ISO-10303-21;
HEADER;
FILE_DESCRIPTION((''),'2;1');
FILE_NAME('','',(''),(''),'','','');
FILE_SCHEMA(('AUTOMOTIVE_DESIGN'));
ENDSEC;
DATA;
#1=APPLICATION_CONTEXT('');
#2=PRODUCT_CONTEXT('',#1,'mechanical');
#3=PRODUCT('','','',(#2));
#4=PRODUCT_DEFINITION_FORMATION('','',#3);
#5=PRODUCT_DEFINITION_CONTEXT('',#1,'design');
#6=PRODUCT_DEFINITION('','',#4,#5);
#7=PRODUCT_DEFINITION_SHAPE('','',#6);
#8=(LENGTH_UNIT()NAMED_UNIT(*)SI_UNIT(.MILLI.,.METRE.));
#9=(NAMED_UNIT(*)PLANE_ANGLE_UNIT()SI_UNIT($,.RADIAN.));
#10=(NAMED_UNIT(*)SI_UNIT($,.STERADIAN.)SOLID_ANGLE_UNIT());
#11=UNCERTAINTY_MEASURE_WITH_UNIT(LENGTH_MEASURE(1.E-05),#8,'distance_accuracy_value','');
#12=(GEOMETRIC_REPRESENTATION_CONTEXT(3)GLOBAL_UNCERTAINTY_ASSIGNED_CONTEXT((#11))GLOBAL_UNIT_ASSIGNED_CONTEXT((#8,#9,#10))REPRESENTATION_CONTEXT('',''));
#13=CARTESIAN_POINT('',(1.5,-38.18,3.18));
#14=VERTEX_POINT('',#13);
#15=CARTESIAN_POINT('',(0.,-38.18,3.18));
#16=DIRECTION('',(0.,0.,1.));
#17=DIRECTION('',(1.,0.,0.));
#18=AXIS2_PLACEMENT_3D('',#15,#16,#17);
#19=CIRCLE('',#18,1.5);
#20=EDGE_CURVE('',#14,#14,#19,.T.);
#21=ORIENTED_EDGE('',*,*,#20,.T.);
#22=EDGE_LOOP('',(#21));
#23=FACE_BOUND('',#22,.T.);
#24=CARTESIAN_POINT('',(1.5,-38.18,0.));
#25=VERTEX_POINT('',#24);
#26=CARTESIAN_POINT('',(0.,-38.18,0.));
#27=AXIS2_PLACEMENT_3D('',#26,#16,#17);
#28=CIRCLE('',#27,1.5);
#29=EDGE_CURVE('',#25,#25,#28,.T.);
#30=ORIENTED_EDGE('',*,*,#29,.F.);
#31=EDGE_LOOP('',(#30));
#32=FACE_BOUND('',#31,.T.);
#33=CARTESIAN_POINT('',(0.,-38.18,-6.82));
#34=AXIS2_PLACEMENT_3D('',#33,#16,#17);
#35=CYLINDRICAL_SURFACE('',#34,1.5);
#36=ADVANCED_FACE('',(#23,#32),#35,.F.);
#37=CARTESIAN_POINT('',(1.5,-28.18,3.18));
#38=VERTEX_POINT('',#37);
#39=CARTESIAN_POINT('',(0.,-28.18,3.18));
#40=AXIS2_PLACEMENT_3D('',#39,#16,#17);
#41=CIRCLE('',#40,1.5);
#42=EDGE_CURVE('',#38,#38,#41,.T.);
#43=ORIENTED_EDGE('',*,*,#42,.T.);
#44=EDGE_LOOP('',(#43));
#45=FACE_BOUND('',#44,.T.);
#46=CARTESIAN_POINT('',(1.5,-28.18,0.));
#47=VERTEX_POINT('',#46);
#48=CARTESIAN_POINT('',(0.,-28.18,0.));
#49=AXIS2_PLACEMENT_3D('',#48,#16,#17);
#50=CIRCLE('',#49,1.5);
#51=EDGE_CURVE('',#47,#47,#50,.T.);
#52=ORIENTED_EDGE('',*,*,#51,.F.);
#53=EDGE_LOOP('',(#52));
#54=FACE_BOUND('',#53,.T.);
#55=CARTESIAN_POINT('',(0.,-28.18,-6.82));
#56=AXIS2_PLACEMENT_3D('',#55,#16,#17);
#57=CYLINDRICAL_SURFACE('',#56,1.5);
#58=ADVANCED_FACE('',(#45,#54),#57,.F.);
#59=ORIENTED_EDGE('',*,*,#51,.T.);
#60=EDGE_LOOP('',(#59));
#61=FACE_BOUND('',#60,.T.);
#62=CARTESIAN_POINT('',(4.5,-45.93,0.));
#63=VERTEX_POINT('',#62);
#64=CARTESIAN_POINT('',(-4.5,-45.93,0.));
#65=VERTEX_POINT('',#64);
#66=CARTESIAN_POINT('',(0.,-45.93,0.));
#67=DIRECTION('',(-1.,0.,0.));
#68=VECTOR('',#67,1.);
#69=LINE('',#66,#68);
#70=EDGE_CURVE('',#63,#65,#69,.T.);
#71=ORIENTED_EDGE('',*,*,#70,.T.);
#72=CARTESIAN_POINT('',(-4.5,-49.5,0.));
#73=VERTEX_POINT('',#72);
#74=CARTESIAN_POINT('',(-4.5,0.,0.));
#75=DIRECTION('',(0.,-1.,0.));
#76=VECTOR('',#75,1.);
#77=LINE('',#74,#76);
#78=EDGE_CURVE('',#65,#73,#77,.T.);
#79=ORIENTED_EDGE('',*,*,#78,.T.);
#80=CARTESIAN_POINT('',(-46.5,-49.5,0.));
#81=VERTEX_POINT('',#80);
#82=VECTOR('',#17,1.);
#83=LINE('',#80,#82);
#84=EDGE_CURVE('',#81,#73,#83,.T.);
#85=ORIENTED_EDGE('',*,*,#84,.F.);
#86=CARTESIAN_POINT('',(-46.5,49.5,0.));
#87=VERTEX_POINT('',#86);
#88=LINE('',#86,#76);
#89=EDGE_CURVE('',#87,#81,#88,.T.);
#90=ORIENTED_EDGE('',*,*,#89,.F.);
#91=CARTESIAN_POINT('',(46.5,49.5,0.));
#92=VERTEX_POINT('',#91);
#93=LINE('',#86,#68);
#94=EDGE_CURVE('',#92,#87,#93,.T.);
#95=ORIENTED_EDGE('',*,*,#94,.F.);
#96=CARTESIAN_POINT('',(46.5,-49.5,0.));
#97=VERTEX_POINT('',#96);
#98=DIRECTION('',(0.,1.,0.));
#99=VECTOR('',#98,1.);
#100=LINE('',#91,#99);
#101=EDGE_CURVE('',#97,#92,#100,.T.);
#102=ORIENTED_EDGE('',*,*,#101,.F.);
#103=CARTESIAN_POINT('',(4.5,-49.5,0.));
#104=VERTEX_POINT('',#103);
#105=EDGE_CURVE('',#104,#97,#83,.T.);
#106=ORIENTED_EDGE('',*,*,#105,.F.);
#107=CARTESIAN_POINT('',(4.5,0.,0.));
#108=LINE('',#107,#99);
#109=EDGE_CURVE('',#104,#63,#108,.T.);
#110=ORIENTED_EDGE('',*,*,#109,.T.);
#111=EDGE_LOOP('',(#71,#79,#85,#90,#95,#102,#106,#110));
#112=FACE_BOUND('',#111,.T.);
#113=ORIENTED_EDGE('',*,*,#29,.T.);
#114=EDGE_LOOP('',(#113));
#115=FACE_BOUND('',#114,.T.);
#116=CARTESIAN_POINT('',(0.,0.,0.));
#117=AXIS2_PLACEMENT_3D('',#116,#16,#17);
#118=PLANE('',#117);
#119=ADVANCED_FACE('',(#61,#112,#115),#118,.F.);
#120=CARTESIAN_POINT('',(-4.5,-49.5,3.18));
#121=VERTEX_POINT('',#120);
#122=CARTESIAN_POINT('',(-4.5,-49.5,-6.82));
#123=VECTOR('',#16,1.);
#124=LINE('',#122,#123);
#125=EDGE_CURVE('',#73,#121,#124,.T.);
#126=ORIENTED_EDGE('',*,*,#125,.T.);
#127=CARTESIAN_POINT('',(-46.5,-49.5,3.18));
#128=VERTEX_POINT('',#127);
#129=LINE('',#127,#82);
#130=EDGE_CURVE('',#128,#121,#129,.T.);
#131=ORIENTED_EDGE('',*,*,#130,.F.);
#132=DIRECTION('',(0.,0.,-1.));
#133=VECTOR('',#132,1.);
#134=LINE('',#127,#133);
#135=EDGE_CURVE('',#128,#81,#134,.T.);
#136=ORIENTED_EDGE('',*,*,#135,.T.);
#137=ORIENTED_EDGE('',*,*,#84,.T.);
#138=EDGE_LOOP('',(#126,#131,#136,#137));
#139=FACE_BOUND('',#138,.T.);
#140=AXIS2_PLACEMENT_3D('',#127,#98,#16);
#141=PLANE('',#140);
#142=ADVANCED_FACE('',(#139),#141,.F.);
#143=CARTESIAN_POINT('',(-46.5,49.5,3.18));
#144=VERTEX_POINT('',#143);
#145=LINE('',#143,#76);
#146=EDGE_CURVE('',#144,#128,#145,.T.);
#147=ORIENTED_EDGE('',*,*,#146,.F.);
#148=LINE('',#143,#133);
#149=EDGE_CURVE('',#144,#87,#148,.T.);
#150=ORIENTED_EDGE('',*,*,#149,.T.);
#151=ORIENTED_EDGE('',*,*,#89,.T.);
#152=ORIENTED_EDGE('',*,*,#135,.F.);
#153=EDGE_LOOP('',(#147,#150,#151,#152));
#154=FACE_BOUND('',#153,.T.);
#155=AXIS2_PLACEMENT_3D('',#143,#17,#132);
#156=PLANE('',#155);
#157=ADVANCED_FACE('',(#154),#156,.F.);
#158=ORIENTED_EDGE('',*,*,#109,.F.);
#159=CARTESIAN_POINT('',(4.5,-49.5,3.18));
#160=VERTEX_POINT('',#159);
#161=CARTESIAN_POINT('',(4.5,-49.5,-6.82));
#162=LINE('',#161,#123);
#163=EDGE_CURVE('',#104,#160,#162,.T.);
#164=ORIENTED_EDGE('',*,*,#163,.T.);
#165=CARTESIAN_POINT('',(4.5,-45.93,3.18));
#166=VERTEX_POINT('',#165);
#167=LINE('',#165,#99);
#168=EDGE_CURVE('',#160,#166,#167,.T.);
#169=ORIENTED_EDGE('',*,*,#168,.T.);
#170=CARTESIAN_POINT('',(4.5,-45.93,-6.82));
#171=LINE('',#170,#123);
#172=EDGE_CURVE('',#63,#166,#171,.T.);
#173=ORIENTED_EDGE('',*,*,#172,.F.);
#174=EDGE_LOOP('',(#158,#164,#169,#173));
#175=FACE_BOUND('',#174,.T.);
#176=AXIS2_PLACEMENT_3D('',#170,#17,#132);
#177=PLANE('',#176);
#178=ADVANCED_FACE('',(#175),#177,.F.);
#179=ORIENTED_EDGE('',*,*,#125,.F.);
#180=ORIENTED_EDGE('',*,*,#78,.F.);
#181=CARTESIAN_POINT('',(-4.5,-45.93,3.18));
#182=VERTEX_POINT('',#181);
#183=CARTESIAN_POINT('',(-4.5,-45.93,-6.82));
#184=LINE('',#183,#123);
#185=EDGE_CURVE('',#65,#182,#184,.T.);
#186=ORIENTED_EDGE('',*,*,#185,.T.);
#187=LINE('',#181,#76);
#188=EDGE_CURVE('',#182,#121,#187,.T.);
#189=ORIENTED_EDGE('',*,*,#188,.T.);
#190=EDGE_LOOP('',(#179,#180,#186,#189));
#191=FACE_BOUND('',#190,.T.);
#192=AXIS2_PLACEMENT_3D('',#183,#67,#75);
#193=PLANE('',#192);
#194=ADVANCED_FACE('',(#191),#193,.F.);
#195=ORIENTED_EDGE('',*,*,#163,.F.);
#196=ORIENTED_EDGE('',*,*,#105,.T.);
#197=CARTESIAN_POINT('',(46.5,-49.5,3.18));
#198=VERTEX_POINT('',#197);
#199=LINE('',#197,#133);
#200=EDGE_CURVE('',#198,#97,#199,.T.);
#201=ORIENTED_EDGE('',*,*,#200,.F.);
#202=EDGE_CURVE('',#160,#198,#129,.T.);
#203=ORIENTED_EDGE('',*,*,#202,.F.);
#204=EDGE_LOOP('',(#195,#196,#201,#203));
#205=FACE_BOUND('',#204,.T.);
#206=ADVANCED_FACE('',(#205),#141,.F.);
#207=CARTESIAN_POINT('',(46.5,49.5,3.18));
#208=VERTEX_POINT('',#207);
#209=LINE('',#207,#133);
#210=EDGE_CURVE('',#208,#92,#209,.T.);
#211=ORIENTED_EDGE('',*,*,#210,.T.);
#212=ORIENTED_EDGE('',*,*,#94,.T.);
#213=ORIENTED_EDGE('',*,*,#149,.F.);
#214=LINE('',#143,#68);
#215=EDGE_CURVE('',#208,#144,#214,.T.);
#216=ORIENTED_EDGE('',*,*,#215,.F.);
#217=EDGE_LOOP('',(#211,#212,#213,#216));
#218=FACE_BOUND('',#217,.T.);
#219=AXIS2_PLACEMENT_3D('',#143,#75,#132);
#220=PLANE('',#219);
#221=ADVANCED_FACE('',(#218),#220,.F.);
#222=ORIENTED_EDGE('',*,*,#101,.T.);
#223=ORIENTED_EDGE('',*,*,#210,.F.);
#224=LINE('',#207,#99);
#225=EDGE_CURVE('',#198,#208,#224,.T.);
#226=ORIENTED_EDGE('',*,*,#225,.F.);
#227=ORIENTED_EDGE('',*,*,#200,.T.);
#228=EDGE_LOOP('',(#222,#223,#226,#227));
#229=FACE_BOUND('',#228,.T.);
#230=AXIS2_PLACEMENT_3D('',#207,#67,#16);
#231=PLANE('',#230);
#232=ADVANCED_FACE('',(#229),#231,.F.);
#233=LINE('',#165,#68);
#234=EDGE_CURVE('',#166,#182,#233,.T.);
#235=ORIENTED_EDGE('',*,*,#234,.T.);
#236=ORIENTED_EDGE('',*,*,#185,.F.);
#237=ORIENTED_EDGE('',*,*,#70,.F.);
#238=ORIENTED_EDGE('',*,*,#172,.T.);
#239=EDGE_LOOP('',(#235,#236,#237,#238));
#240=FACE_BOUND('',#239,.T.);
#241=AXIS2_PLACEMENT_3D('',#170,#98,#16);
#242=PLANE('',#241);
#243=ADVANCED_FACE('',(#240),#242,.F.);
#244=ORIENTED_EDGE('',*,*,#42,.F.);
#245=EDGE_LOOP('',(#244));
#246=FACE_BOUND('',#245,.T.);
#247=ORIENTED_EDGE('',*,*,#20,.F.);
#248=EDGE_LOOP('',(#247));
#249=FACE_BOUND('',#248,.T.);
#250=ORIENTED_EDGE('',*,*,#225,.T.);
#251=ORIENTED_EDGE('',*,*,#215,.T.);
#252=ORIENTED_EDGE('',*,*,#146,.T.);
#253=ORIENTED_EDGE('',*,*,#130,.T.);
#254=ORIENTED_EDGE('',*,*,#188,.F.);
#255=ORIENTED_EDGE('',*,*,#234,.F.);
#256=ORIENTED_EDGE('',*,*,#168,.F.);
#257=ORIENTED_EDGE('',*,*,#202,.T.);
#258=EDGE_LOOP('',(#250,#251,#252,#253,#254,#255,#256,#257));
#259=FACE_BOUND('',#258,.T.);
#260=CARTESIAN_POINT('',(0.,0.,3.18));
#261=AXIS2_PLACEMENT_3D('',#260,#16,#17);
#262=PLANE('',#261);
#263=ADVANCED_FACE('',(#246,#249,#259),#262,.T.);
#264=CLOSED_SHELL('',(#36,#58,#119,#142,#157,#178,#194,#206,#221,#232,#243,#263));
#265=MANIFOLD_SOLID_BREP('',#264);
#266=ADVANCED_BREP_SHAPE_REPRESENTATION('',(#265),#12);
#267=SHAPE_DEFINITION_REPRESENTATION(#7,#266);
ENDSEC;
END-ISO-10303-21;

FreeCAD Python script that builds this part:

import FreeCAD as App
import Part
import Sketcher
from FreeCAD import Vector
Q = App.Units.Quantity


def add_polygon(sketch, points):
    """Adds a closed chain of lines whose ends are joined by coincident constraints."""
    first, n = sketch.GeometryCount, len(points)
    for a, b in zip(points, points[1:] + points[:1]):
        sketch.addGeometry(Part.LineSegment(App.Vector(*a, 0), App.Vector(*b, 0)), False)
    for i in range(n):
        sketch.addConstraint(Sketcher.Constraint("Coincident", first + i, 2, first + (i + 1) % n, 1))

doc = App.newDocument("Part")
params = doc.addObject("Spreadsheet::Sheet", "Params")
for row, (alias, value) in enumerate([
    ("sketch1_width", "93 mm"),
    ("sketch1_height", "99 mm"),
    ("pad1_length", "3.18 mm"),
    ("sketch2_diameter", "3 mm"),
    ("pocket1_length", "10 mm"),
    ("sketch3_width", "9 mm"),
    ("sketch3_height", "3.57 mm"),
    ("pocket2_length", "10 mm"),
], start=1):
    params.set(f"A{row}", alias)
    params.set(f"B{row}", "=" + value)
    params.setAlias(f"B{row}", alias)

body = doc.addObject("PartDesign::Body", "Body")

sketch1 = body.newObject("Sketcher::SketchObject", "Sketch")
sketch1.AttachmentSupport = (doc.getObject("XY_Plane"), [""])
sketch1.MapMode = "FlatFace"
add_polygon(sketch1, [(-46, 50), (-46, -50), (46, -50), (46, 50)])
sketch1.addConstraint([
    Sketcher.Constraint("Vertical", 0),
    Sketcher.Constraint("Horizontal", 1),
    Sketcher.Constraint("Vertical", 2),
    Sketcher.Constraint("Horizontal", 3),
    Sketcher.Constraint("Symmetric", 0, 2, 2, 2, -1, 1),
    Sketcher.Constraint("DistanceX", 1, 1, 1, 2, Q("93 mm")),
    Sketcher.Constraint("DistanceY", 0, 2, 0, 1, Q("99 mm")),
])
sketch1.setExpression("Constraints[9]", "Params.sketch1_width")
sketch1.setExpression("Constraints[10]", "Params.sketch1_height")
pad1 = body.newObject("PartDesign::Pad", "Pad")
pad1.Profile = sketch1
pad1.setExpression("Length", "Params.pad1_length")

sketch2 = body.newObject("Sketcher::SketchObject", "Sketch001")
sketch2.AttachmentSupport = (doc.getObject("XY_Plane"), [""])
sketch2.MapMode = "FlatFace"
sketch2.AttachmentOffset = App.Placement(Vector(0, 0, 3.18), App.Rotation())
sketch2.addGeometry([
    Part.Circle(Vector(0, -38.2, 0), Vector(0, 0, 1), 1.5),
    Part.Circle(Vector(0, -28.2, 0), Vector(0, 0, 1), 1.5),
], False)
sketch2.addConstraint([
    Sketcher.Constraint("Equal", 0, 1),
    Sketcher.Constraint("PointOnObject", 0, 3, -2),
    Sketcher.Constraint("PointOnObject", 1, 3, -2),
    Sketcher.Constraint("Diameter", 0, Q("3 mm")),
    Sketcher.Constraint("DistanceY", 0, 3, 1, 3, Q("10 mm")),
    Sketcher.Constraint("DistanceY", 0, 3, -1, 1, Q("38.18 mm")),
])
sketch2.setExpression("Constraints[3]", "Params.sketch2_diameter")
pocket1 = body.newObject("PartDesign::Pocket", "Pocket")
pocket1.Profile = sketch2
pocket1.setExpression("Length", "Params.pocket1_length")

sketch3 = body.newObject("Sketcher::SketchObject", "Sketch002")
sketch3.AttachmentSupport = (doc.getObject("XY_Plane"), [""])
sketch3.MapMode = "FlatFace"
sketch3.AttachmentOffset = App.Placement(Vector(0, 0, 3.18), App.Rotation())
add_polygon(sketch3, [(-4.5, -45.9), (-4.5, -49.5), (4.5, -49.5), (4.5, -45.9)])
sketch3.addConstraint([
    Sketcher.Constraint("Vertical", 0),
    Sketcher.Constraint("Horizontal", 1),
    Sketcher.Constraint("Vertical", 2),
    Sketcher.Constraint("Horizontal", 3),
    Sketcher.Constraint("DistanceX", 1, 1, 1, 2, Q("9 mm")),
    Sketcher.Constraint("DistanceY", 0, 2, 0, 1, Q("3.57 mm")),
    Sketcher.Constraint("DistanceX", 0, 2, -1, 1, Q("4.5 mm")),
    Sketcher.Constraint("DistanceY", 0, 2, -1, 1, Q("49.5 mm")),
])
sketch3.setExpression("Constraints[8]", "Params.sketch3_width")
sketch3.setExpression("Constraints[9]", "Params.sketch3_height")
pocket2 = body.newObject("PartDesign::Pocket", "Pocket001")
pocket2.Profile = sketch3
pocket2.setExpression("Length", "Params.pocket2_length")

doc.recompute()
